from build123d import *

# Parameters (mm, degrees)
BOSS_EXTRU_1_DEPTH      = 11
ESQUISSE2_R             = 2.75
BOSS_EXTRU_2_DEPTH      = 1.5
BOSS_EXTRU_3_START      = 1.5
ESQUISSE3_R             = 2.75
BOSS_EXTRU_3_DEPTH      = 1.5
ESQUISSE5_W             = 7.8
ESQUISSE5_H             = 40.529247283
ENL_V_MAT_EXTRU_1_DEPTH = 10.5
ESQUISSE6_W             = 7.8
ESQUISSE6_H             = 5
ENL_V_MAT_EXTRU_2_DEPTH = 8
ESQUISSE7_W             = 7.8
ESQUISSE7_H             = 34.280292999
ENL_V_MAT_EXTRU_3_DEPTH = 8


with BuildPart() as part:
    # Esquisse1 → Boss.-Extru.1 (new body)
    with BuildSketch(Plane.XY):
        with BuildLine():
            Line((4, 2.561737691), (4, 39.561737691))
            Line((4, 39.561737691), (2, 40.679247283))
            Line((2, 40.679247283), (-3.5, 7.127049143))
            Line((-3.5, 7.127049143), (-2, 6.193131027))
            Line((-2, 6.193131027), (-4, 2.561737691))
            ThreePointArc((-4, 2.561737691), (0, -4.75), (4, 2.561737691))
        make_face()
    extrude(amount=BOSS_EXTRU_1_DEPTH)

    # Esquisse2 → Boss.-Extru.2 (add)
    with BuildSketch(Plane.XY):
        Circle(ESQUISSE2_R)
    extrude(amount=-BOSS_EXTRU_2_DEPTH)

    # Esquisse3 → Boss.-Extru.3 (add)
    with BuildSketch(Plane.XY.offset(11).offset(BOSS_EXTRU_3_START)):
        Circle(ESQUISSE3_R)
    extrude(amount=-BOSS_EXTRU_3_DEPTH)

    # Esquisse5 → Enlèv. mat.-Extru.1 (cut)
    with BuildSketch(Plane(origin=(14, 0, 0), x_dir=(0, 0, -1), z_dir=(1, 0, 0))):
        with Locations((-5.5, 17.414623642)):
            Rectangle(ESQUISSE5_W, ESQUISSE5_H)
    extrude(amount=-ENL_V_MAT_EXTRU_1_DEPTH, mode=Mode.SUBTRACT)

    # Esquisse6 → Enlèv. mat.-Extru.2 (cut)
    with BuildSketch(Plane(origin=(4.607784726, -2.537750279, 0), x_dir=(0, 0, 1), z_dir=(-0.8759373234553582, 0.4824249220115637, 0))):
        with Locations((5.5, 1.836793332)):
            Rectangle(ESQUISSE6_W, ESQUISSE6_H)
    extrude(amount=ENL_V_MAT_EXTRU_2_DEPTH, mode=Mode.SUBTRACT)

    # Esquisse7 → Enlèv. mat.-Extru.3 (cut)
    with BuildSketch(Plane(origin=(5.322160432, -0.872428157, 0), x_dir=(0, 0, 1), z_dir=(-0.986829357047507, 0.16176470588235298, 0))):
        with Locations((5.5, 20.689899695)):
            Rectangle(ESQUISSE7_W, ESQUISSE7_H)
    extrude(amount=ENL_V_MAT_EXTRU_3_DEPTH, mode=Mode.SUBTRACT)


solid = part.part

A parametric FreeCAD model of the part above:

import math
import FreeCAD as App
import Part
import Sketcher
from FreeCAD import Vector


def add_polygon(sketch, points):
    """Adds a closed chain of lines whose ends are joined by coincident constraints."""
    first, n = sketch.GeometryCount, len(points)
    for a, b in zip(points, points[1:] + points[:1]):
        sketch.addGeometry(Part.LineSegment(App.Vector(*a, 0), App.Vector(*b, 0)), False)
    for i in range(n):
        sketch.addConstraint(Sketcher.Constraint("Coincident", first + i, 2, first + (i + 1) % n, 1))

doc = App.newDocument("Part")
body = doc.addObject("PartDesign::Body", "Body")

# Sketch on XY plane
sketch1 = body.newObject("Sketcher::SketchObject", "Sketch")
sketch1.AttachmentSupport = (doc.getObject("XY_Plane"), [""])
sketch1.MapMode = "FlatFace"
sketch1.addGeometry(Part.LineSegment(Vector(4, 2.6, 0), Vector(4, 39.6, 0)), False)
sketch1.addGeometry(Part.LineSegment(Vector(4, 39.6, 0), Vector(2, 40.7, 0)), False)
sketch1.addGeometry(Part.LineSegment(Vector(2, 40.7, 0), Vector(-3.5, 7.1, 0)), False)
sketch1.addGeometry(Part.LineSegment(Vector(-3.5, 7.1, 0), Vector(-2, 6.2, 0)), False)
sketch1.addGeometry(Part.LineSegment(Vector(-2, 6.2, 0), Vector(-4, 2.6, 0)), False)
sketch1.addGeometry(Part.ArcOfCircle(Part.Circle(Vector(0, 0, 0), Vector(0, 0, 1), 4.8), math.radians(147), math.radians(393)), False)
sketch1.addConstraint(Sketcher.Constraint("Coincident", 0, 2, 1, 1))
sketch1.addConstraint(Sketcher.Constraint("Coincident", 1, 2, 2, 1))
sketch1.addConstraint(Sketcher.Constraint("Coincident", 2, 2, 3, 1))
sketch1.addConstraint(Sketcher.Constraint("Coincident", 3, 2, 4, 1))
sketch1.addConstraint(Sketcher.Constraint("Coincident", 4, 2, 5, 1))
sketch1.addConstraint(Sketcher.Constraint("Coincident", 5, 2, 0, 1))
sketch1.addConstraint(Sketcher.Constraint("Vertical", 0))
sketch1.addConstraint(Sketcher.Constraint("Coincident", 5, 3, -1, 1))
sketch1.addConstraint(Sketcher.Constraint("Horizontal", 4, 2, 5, 2))
sketch1.addConstraint(Sketcher.Constraint("DistanceY", 0, 1, 0, 2, 37.0))
sketch1.addConstraint(Sketcher.Constraint("Radius", 5, 4.75))
sketch1.addConstraint(Sketcher.Constraint("Distance", 2, 34.0))
sketch1.addConstraint(Sketcher.Constraint("DistanceX", -1, 1, 0, 2, 4.0))
sketch1.addConstraint(Sketcher.Constraint("DistanceX", -1, 1, 1, 2, 2.0))
sketch1.addConstraint(Sketcher.Constraint("DistanceX", 3, 2, -1, 1, 2.0))
sketch1.addConstraint(Sketcher.Constraint("DistanceX", 2, 2, -1, 1, 3.5))
sketch1.addConstraint(Sketcher.Constraint("DistanceY", -1, 1, 2, 2, 7.127049))
sketch1.addConstraint(Sketcher.Constraint("DistanceY", -1, 1, 3, 2, 6.193131))
pad1 = body.newObject("PartDesign::Pad", "Pad")
pad1.Profile = sketch1
pad1.Length = 11

# Sketch on XY plane
sketch2 = body.newObject("Sketcher::SketchObject", "Sketch001")
sketch2.AttachmentSupport = (doc.getObject("XY_Plane"), [""])
sketch2.MapMode = "FlatFace"
sketch2.addGeometry(Part.Circle(Vector(0, 0, 0), Vector(0, 0, 1), 2.8), False)
sketch2.addConstraint(Sketcher.Constraint("Coincident", 0, 3, -1, 1))
sketch2.addConstraint(Sketcher.Constraint("Diameter", 0, 5.5))
pad2 = body.newObject("PartDesign::Pad", "Pad001")
pad2.Profile = sketch2
pad2.Length = 1.5
pad2.Reversed = True

# Sketch on XY plane
sketch3 = body.newObject("Sketcher::SketchObject", "Sketch002")
sketch3.AttachmentSupport = (doc.getObject("XY_Plane"), [""])
sketch3.MapMode = "FlatFace"
sketch3.AttachmentOffset = App.Placement(Vector(0, 0, 12.5), App.Rotation())
sketch3.addGeometry(Part.Circle(Vector(0, 0, 0), Vector(0, 0, 1), 2.8), False)
sketch3.addConstraint(Sketcher.Constraint("Coincident", 0, 3, -1, 1))
sketch3.addConstraint(Sketcher.Constraint("Diameter", 0, 5.5))
pad3 = body.newObject("PartDesign::Pad", "Pad002")
pad3.Profile = sketch3
pad3.Length = 1.5
pad3.Reversed = True

# Sketch on YZ plane
sketch4 = body.newObject("Sketcher::SketchObject", "Sketch003")
sketch4.AttachmentSupport = (doc.getObject("YZ_Plane"), [""])
sketch4.MapMode = "FlatFace"
sketch4.AttachmentOffset = App.Placement(Vector(0, 0, 14), App.Rotation())
add_polygon(sketch4, [(38, 9), (-3, 9), (-3, 2), (38, 2)])  # lines 0-3
sketch4.addConstraint(Sketcher.Constraint("Horizontal", 0))
sketch4.addConstraint(Sketcher.Constraint("Vertical", 1))
sketch4.addConstraint(Sketcher.Constraint("Horizontal", 2))
sketch4.addConstraint(Sketcher.Constraint("Vertical", 3))
sketch4.addConstraint(Sketcher.Constraint("DistanceY", 1, 2, 1, 1, 7.8))
sketch4.addConstraint(Sketcher.Constraint("DistanceY", -1, 1, 0, 2, 9.4))
sketch4.addConstraint(Sketcher.Constraint("DistanceX", 0, 2, -1, 1, 2.85))
sketch4.addConstraint(Sketcher.Constraint("DistanceX", 0, 2, 0, 1, 40.529247))
pocket1 = body.newObject("PartDesign::Pocket", "Pocket")
pocket1.Profile = sketch4
pocket1.Length = 10.5

# Sketch on an angled plane
sketch5 = body.newObject("Sketcher::SketchObject", "Sketch004")
sketch5.Placement = App.Placement(Vector(4.607785, -2.53775, 0), App.Rotation(Vector(0, 0, 1), Vector(0.482424922, 0.875937323, 0), Vector(-0.875937323, 0.482424922, 0), "ZXY"))
add_polygon(sketch5, [(1.6, 4.3), (1.6, -0.7), (9.4, -0.7), (9.4, 4.3)])  # lines 0-3
sketch5.addConstraint(Sketcher.Constraint("Vertical", 0))
sketch5.addConstraint(Sketcher.Constraint("Horizontal", 1))
sketch5.addConstraint(Sketcher.Constraint("Vertical", 2))
sketch5.addConstraint(Sketcher.Constraint("Horizontal", 3))
sketch5.addConstraint(Sketcher.Constraint("DistanceY", 0, 2, 0, 1, 5.0))
sketch5.addConstraint(Sketcher.Constraint("DistanceX", 1, 1, 1, 2, 7.8))
sketch5.addConstraint(Sketcher.Constraint("DistanceX", -1, 1, 0, 2, 1.6))
sketch5.addConstraint(Sketcher.Constraint("DistanceY", 0, 2, -1, 1, 0.663207))
pocket2 = body.newObject("PartDesign::Pocket", "Pocket001")
pocket2.Profile = sketch5
pocket2.Length = 8
pocket2.Reversed = True

# Sketch on an angled plane
sketch6 = body.newObject("Sketcher::SketchObject", "Sketch005")
sketch6.Placement = App.Placement(Vector(5.32216, -0.872428, 0), App.Rotation(Vector(0, 0, 1), Vector(0.161764706, 0.986829357, 0), Vector(-0.986829357, 0.161764706, 0), "ZXY"))
add_polygon(sketch6, [(2, 38), (2, 4), (9, 4), (9, 38)])  # lines 0-3
sketch6.addConstraint(Sketcher.Constraint("Vertical", 0))
sketch6.addConstraint(Sketcher.Constraint("Horizontal", 1))
sketch6.addConstraint(Sketcher.Constraint("Vertical", 2))
sketch6.addConstraint(Sketcher.Constraint("Horizontal", 3))
sketch6.addConstraint(Sketcher.Constraint("DistanceX", 1, 1, 1, 2, 7.8))
sketch6.addConstraint(Sketcher.Constraint("DistanceX", -1, 1, 0, 2, 1.6))
sketch6.addConstraint(Sketcher.Constraint("DistanceY", 0, 2, 0, 1, 34.280293))
sketch6.addConstraint(Sketcher.Constraint("DistanceY", -1, 1, 0, 2, 3.549753))
pocket3 = body.newObject("PartDesign::Pocket", "Pocket002")
pocket3.Profile = sketch6
pocket3.Length = 8
pocket3.Reversed = True

doc.recompute()
